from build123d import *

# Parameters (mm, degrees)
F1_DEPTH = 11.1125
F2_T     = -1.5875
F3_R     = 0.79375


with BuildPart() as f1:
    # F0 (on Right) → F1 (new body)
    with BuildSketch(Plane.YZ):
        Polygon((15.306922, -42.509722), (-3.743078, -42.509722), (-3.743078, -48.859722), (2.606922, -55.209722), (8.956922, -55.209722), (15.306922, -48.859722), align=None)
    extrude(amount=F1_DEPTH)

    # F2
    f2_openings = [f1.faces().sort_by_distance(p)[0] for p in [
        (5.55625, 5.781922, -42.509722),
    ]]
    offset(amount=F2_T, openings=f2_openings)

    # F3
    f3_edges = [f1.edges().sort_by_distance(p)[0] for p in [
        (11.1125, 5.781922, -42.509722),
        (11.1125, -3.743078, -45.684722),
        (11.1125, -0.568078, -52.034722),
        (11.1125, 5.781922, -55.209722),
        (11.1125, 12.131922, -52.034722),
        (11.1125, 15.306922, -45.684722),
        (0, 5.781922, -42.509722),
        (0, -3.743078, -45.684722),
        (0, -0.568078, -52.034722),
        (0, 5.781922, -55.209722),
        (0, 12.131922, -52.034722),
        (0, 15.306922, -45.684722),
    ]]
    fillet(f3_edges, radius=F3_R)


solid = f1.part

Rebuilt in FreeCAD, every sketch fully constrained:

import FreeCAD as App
import Part
import Sketcher

V = App.Vector
Q = App.Units.Quantity


def edges_at(feature, points):
    """Names of the edges that pass closest to the given points."""
    edges = feature.Shape.Edges
    near = lambda p: min(range(len(edges)), key=lambda i: edges[i].distToShape(Part.Vertex(*p))[0])
    return sorted({f"Edge{near(p) + 1}" for p in points})


def faces_at(feature, points):
    """Names of the faces that lie closest to the given points."""
    faces = feature.Shape.Faces
    near = lambda p: min(range(len(faces)), key=lambda i: faces[i].distToShape(Part.Vertex(*p))[0])
    return sorted({f"Face{near(p) + 1}" for p in points})


def add_polygon(sketch, points):
    """Adds a closed chain of lines whose ends are joined by coincident constraints."""
    first, n = sketch.GeometryCount, len(points)
    for a, b in zip(points, points[1:] + points[:1]):
        sketch.addGeometry(Part.LineSegment(App.Vector(*a, 0), App.Vector(*b, 0)), False)
    for i in range(n):
        sketch.addConstraint(Sketcher.Constraint("Coincident", first + i, 2, first + (i + 1) % n, 1))

doc = App.newDocument("Part")
params = doc.addObject("Spreadsheet::Sheet", "Params")
for row, (alias, value) in enumerate([
    ("sketch1_width", "0.75 in"),
    ("sketch1_width2", "0.25 in"),
    ("pad1_length", "0.4375 in"),
    ("thickness_wall", "0.0625 in"),
    ("fillet_radius", "0.03125 in"),
], start=1):
    params.set(f"A{row}", alias)
    params.set(f"B{row}", "=" + value)
    params.setAlias(f"B{row}", alias)

body = doc.addObject("PartDesign::Body", "Body")

# Sketch on YZ plane
sketch1 = body.newObject("Sketcher::SketchObject", "Sketch")
sketch1.AttachmentSupport = (doc.getObject("YZ_Plane"), [""])
sketch1.MapMode = "FlatFace"
add_polygon(sketch1, [(15.306922, -42.509722), (-3.743078, -42.509722), (-3.743078, -48.859722), (2.606922, -55.209722), (8.956922, -55.209722), (15.306922, -48.859722)])  # lines 0-5
sketch1.addConstraint(Sketcher.Constraint("Horizontal", 0))
sketch1.addConstraint(Sketcher.Constraint("Vertical", 1))
sketch1.addConstraint(Sketcher.Constraint("Horizontal", 3))
sketch1.addConstraint(Sketcher.Constraint("Vertical", 5))
sketch1.addConstraint(Sketcher.Constraint("Perpendicular", 2, 4))
sketch1.addConstraint(Sketcher.Constraint("Horizontal", 1, 2, 4, 2))
sketch1.addConstraint(Sketcher.Constraint("Equal", 3, 1))
sketch1.addConstraint(Sketcher.Constraint("Equal", 2, 4))
sketch1.addConstraint(Sketcher.Constraint("DistanceX", 0, 2, 0, 1, Q("0.75 in")))
sketch1.addConstraint(Sketcher.Constraint("DistanceX", 3, 1, 3, 2, Q("0.25 in")))
sketch1.addConstraint(Sketcher.Constraint("DistanceX", 0, 2, -1, 1, Q("3.743078 mm")))
sketch1.addConstraint(Sketcher.Constraint("DistanceY", 0, 2, -1, 1, Q("42.509722 mm")))
sketch1.setExpression("Constraints[14]", "Params.sketch1_width")
sketch1.setExpression("Constraints[15]", "Params.sketch1_width2")
pad1 = body.newObject("PartDesign::Pad", "Pad")
pad1.Profile = sketch1
pad1.setExpression("Length", "Params.pad1_length")
doc.recompute()

thickness = body.newObject("PartDesign::Thickness", "Thickness")
thickness.Base = (pad1, faces_at(pad1, [(5.556, 5.782, -42.51)]))
thickness.setExpression("Value", "Params.thickness_wall")
thickness.Reversed = True
thickness.Join = "Arc"
doc.recompute()

fillet = body.newObject("PartDesign::Fillet", "Fillet")
fillet.Base = (thickness, edges_at(thickness, [
    (11.113, 5.782, -42.51),
    (11.113, -3.743, -45.685),
    (11.113, -0.568, -52.035),
    (11.113, 5.782, -55.21),
    (11.113, 12.132, -52.035),
    (11.113, 15.307, -45.685),
    (0, 5.782, -42.51),
    (0, -3.743, -45.685),
    (0, -0.568, -52.035),
    (0, 5.782, -55.21),
    (0, 12.132, -52.035),
    (0, 15.307, -45.685),
]))
fillet.setExpression("Radius", "Params.fillet_radius")

doc.recompute()
